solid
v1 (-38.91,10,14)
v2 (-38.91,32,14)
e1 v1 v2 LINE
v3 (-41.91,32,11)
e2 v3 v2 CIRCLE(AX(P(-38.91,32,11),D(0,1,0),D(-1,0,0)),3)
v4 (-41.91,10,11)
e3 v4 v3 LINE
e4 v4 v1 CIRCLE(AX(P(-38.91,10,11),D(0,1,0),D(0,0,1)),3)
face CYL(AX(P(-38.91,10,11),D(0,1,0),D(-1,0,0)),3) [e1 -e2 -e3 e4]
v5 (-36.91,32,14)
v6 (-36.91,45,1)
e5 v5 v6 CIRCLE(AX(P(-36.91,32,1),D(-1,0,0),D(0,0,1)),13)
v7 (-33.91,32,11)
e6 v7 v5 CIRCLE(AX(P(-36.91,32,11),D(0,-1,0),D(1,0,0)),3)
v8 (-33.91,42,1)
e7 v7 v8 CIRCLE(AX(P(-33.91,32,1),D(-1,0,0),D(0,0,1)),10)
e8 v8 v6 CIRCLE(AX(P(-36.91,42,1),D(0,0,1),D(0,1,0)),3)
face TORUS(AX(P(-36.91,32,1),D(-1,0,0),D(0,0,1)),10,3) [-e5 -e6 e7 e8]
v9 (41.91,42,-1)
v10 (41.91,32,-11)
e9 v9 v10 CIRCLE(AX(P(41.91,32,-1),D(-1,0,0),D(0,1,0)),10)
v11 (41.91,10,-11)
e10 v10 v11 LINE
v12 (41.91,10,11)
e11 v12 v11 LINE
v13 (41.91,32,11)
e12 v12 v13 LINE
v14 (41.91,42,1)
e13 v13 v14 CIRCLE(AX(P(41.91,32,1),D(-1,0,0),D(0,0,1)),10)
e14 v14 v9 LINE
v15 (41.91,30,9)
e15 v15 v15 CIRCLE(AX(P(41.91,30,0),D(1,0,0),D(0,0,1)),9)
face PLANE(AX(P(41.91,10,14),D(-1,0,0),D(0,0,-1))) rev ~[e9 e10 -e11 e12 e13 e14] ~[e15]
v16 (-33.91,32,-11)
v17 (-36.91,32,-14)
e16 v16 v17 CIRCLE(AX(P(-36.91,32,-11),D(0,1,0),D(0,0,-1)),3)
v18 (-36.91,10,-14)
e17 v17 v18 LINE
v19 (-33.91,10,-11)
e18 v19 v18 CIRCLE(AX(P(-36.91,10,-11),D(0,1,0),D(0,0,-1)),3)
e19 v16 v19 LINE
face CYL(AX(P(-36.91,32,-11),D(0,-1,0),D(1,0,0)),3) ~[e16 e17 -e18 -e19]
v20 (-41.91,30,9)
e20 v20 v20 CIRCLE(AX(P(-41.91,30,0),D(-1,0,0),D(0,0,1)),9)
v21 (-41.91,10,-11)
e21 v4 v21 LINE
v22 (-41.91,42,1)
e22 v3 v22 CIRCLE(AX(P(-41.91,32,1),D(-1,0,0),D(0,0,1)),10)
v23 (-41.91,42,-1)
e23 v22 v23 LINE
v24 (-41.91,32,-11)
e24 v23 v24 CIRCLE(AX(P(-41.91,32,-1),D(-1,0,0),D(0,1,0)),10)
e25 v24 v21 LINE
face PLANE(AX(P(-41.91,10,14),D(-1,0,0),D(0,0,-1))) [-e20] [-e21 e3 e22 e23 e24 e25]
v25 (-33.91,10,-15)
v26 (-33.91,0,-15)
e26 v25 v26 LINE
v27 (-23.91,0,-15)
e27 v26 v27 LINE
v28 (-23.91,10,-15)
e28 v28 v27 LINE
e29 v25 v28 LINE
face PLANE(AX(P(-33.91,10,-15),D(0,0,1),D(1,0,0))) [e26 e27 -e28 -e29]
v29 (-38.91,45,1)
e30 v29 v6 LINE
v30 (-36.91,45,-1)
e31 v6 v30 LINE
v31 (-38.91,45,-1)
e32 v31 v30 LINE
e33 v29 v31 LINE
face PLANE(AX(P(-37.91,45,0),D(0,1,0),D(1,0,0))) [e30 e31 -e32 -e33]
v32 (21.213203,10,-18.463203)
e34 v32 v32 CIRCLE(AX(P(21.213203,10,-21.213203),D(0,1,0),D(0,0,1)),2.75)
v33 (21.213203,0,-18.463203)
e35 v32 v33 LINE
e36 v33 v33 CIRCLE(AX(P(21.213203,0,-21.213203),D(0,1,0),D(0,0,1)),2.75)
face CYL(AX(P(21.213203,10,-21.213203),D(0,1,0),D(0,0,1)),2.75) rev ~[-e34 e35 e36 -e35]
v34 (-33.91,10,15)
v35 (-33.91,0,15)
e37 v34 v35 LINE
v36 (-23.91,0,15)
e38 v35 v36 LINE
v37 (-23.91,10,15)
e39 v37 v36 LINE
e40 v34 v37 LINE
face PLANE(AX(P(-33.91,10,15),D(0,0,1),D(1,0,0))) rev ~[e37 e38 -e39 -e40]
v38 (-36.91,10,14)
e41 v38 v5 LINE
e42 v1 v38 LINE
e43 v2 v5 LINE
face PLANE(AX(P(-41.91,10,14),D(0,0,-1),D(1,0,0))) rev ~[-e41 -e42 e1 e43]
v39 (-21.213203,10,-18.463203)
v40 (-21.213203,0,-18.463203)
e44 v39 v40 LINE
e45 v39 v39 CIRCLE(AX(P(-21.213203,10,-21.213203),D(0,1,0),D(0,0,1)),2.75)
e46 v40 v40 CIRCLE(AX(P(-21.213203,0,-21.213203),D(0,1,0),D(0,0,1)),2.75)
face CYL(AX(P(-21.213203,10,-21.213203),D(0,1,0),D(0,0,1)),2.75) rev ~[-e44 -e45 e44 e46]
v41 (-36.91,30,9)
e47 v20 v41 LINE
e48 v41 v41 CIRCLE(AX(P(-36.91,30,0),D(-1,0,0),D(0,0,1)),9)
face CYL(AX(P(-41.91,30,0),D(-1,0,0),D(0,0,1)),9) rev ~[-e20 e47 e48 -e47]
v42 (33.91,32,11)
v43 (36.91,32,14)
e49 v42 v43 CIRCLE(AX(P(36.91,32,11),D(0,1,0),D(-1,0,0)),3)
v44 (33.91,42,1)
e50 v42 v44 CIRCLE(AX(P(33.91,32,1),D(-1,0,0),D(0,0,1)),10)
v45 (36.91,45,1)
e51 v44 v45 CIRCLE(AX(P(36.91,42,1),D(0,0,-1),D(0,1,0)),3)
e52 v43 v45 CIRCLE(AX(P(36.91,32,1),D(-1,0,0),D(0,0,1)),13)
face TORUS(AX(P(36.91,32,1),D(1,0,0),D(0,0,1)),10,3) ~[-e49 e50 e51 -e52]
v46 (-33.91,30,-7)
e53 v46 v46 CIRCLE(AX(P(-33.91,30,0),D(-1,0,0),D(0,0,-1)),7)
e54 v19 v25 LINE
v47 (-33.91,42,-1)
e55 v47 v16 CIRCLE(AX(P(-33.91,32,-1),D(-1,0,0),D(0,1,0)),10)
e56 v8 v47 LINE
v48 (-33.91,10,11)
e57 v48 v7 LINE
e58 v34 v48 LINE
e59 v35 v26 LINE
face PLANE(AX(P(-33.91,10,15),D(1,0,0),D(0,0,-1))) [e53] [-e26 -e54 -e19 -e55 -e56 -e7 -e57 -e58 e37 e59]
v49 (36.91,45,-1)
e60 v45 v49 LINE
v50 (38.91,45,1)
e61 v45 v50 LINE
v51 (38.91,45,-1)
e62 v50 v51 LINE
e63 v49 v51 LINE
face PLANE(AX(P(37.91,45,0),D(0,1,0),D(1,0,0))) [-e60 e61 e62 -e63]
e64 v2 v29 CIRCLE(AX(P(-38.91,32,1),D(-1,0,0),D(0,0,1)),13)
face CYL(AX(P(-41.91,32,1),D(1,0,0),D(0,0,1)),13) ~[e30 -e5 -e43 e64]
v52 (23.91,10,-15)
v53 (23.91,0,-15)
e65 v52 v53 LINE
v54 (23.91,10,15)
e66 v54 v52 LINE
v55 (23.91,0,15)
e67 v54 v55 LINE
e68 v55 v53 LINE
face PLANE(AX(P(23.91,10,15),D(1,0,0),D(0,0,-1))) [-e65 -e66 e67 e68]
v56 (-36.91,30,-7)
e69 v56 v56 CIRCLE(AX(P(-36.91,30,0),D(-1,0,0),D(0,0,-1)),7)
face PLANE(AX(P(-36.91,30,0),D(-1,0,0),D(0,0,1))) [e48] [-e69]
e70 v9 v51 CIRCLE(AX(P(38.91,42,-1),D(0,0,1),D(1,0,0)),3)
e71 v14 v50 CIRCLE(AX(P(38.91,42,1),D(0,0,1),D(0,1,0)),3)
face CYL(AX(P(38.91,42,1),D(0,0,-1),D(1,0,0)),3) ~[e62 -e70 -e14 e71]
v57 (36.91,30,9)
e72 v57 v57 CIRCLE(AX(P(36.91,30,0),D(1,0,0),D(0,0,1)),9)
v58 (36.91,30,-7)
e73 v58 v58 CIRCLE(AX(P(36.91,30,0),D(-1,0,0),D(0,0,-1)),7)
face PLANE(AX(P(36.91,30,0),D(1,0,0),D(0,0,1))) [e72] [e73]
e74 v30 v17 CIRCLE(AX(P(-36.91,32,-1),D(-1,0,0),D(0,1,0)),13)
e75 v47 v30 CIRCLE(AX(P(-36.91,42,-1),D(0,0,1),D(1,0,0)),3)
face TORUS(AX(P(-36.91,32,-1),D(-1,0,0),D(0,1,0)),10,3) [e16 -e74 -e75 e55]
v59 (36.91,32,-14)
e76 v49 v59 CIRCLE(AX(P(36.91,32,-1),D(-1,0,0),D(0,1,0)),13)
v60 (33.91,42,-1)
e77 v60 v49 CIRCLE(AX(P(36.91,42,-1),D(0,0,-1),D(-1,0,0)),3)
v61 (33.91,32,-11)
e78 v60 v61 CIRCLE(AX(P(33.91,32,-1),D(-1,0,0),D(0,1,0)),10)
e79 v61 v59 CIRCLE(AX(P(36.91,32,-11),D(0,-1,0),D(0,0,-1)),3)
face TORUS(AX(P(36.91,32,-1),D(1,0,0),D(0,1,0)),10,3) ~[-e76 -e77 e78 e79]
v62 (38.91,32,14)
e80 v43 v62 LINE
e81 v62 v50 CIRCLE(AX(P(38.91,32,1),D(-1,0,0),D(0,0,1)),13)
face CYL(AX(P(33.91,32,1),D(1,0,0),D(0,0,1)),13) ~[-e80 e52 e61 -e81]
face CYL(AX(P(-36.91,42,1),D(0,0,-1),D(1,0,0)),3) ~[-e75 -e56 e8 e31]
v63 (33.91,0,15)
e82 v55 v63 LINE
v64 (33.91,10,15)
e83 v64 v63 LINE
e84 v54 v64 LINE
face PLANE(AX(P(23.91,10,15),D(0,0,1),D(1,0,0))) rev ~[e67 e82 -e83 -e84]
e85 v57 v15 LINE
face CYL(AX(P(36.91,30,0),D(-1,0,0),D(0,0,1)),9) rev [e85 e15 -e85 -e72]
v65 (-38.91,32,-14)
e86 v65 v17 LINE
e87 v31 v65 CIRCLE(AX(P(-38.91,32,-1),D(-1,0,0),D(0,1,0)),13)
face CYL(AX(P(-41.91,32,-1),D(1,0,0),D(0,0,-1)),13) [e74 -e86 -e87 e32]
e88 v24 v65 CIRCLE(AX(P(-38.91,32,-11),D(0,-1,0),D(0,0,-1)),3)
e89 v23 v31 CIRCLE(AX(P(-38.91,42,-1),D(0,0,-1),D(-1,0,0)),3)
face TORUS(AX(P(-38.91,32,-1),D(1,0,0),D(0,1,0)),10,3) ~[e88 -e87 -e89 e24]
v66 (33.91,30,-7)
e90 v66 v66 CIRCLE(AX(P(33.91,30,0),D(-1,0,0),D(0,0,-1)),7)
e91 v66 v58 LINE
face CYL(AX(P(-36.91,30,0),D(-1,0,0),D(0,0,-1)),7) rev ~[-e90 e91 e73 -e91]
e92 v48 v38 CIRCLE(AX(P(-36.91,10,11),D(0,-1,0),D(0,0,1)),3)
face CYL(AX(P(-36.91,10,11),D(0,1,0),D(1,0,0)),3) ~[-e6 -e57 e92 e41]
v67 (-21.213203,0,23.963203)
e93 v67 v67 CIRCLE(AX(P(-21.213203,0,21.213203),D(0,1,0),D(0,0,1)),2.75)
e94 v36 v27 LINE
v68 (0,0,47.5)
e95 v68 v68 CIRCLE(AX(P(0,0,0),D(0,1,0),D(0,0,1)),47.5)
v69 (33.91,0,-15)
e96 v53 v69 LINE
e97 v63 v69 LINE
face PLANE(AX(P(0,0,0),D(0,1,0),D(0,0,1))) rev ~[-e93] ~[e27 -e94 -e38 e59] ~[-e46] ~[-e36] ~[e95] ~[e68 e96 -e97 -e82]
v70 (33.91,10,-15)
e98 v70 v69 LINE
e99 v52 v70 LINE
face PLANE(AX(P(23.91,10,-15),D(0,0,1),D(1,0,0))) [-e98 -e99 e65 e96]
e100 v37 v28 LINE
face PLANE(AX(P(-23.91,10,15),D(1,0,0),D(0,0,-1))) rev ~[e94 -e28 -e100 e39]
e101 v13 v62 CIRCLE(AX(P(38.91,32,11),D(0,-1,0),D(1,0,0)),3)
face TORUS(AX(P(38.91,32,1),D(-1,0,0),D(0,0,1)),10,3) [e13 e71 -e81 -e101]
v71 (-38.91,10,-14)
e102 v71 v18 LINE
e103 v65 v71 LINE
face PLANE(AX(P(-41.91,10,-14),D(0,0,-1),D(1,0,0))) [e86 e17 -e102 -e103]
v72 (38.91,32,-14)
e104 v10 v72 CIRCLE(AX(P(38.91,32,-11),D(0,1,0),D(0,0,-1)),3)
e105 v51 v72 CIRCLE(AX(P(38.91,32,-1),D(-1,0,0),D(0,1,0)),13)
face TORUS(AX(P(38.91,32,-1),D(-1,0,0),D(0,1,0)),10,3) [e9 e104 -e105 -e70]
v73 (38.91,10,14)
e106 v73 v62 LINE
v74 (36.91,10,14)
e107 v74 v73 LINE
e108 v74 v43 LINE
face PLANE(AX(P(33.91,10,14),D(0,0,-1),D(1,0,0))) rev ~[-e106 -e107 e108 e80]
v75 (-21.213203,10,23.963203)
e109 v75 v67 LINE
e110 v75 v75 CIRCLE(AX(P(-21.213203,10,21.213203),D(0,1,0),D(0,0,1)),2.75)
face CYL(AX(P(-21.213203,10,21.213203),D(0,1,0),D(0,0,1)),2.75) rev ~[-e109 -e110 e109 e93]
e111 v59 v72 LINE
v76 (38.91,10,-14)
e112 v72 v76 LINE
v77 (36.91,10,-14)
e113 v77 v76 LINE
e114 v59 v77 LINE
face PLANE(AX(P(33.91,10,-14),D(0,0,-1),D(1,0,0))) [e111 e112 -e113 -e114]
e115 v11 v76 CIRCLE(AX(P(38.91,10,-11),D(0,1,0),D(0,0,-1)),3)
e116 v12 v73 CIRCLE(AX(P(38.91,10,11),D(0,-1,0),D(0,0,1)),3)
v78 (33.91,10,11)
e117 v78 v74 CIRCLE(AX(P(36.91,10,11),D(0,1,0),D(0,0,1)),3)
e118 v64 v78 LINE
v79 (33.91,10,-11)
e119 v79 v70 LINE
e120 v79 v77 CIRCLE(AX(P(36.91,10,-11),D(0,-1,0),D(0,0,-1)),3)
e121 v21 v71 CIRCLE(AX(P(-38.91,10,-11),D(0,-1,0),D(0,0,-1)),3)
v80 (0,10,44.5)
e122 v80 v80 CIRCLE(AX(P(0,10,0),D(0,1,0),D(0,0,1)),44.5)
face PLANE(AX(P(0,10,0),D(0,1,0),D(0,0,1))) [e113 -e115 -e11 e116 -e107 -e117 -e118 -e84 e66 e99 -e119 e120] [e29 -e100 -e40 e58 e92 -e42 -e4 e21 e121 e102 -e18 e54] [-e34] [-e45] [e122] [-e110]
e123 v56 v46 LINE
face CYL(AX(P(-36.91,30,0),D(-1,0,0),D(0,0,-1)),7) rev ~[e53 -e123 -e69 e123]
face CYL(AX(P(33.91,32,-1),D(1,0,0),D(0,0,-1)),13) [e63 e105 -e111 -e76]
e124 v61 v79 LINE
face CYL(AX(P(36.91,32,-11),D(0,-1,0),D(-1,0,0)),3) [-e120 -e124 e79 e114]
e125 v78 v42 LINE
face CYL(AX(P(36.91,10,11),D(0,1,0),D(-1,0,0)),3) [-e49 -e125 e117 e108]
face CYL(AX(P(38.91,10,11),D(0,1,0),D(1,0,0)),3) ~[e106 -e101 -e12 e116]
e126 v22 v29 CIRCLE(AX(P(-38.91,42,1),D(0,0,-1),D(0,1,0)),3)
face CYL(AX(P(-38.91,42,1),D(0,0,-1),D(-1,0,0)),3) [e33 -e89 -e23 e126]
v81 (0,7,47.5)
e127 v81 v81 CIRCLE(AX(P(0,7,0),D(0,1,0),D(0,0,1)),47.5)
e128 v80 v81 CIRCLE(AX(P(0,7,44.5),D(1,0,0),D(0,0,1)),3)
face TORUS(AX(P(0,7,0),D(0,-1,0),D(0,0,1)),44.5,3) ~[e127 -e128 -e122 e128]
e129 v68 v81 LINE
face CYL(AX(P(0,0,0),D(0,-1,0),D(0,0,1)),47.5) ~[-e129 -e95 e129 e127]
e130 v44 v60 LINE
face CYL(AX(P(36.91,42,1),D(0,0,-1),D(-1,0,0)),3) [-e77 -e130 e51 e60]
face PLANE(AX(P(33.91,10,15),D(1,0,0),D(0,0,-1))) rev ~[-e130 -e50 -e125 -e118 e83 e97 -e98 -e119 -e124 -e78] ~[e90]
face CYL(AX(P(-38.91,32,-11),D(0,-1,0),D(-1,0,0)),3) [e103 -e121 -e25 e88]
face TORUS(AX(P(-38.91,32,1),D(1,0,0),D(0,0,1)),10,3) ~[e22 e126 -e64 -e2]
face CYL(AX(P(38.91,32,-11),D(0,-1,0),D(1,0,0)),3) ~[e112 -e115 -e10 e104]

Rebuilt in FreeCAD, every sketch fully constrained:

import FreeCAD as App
import Part
import Sketcher

V = App.Vector
Q = App.Units.Quantity


def edges_at(feature, points):
    """Names of the edges that pass closest to the given points."""
    edges = feature.Shape.Edges
    near = lambda p: min(range(len(edges)), key=lambda i: edges[i].distToShape(Part.Vertex(*p))[0])
    return sorted({f"Edge{near(p) + 1}" for p in points})

doc = App.newDocument("Part")
params = doc.addObject("Spreadsheet::Sheet", "Params")
for row, (alias, value) in enumerate([
    ("sketch1_diameter", "95 mm"),
    ("pad1_length", "10 mm"),
    ("sketch2_width", "8 mm"),
    ("sketch2_height", "28 mm"),
    ("pad2_length", "35 mm"),
    ("sketch3_diameter", "5.5 mm"),
    ("pocket1_length", "70 mm"),
    ("sketch4_diameter", "18 mm"),
    ("pocket2_length", "5 mm"),
    ("sketch5_diameter", "18 mm"),
    ("pocket3_length", "5 mm"),
    ("sketch6_diameter", "14 mm"),
    ("fillet_radius", "13 mm"),
    ("fillet2_radius", "3 mm"),
    ("fillet3_radius", "3 mm"),
    ("sketch7_width", "10 mm"),
    ("sketch7_height", "30 mm"),
], start=1):
    params.set(f"A{row}", alias)
    params.set(f"B{row}", "=" + value)
    params.setAlias(f"B{row}", alias)

body = doc.addObject("PartDesign::Body", "Body")

# Sketch on XZ plane
sketch1 = body.newObject("Sketcher::SketchObject", "Sketch")
sketch1.AttachmentSupport = (doc.getObject("XZ_Plane"), [""])
sketch1.MapMode = "FlatFace"
sketch1.addGeometry(Part.Circle(V(0, 0, 0), V(0, 0, 1), 48), False)
sketch1.addConstraint([
    Sketcher.Constraint("Coincident", 0, 3, -1, 1),
    Sketcher.Constraint("Diameter", 0, Q("95 mm")),
])
sketch1.setExpression("Constraints[1]", "Params.sketch1_diameter")
pad1 = body.newObject("PartDesign::Pad", "Pad")
pad1.Profile = sketch1
pad1.setExpression("Length", "Params.pad1_length")
pad1.Reversed = True

# Sketch on XZ plane
sketch2 = body.newObject("Sketcher::SketchObject", "Sketch001")
sketch2.AttachmentSupport = (doc.getObject("XZ_Plane"), [""])
sketch2.MapMode = "FlatFace"
sketch2.AttachmentOffset = App.Placement(V(0, 0, -10), App.Rotation())
sketch2.addGeometry([
    Part.LineSegment(V(-42, -14, 0), V(-42, 14, 0)),  # 0
    Part.LineSegment(V(-42, 14, 0), V(-34, 14, 0)),  # 1
    Part.LineSegment(V(-34, 14, 0), V(-34, -14, 0)),  # 2
    Part.LineSegment(V(-34, -14, 0), V(-42, -14, 0)),  # 3
    Part.LineSegment(V(34, -14, 0), V(34, 14, 0)),  # 4
    Part.LineSegment(V(34, 14, 0), V(42, 14, 0)),  # 5
    Part.LineSegment(V(42, 14, 0), V(42, -14, 0)),  # 6
    Part.LineSegment(V(42, -14, 0), V(34, -14, 0)),  # 7
], False)
sketch2.addConstraint([
    Sketcher.Constraint("Coincident", 0, 2, 1, 1),
    Sketcher.Constraint("Coincident", 1, 2, 2, 1),
    Sketcher.Constraint("Coincident", 2, 2, 3, 1),
    Sketcher.Constraint("Coincident", 3, 2, 0, 1),
    Sketcher.Constraint("Coincident", 4, 2, 5, 1),
    Sketcher.Constraint("Coincident", 5, 2, 6, 1),
    Sketcher.Constraint("Coincident", 6, 2, 7, 1),
    Sketcher.Constraint("Coincident", 7, 2, 4, 1),
    Sketcher.Constraint("Vertical", 0),
    Sketcher.Constraint("Horizontal", 1),
    Sketcher.Constraint("Vertical", 2),
    Sketcher.Constraint("Horizontal", 3),
    Sketcher.Constraint("Vertical", 4),
    Sketcher.Constraint("Horizontal", 5),
    Sketcher.Constraint("Vertical", 6),
    Sketcher.Constraint("Horizontal", 7),
    Sketcher.Constraint("Symmetric", 2, 2, 4, 2, -1, 1),
    Sketcher.Constraint("Symmetric", 0, 2, 6, 2, -1, 1),
    Sketcher.Constraint("Horizontal", 1, 2, 4, 2),
    Sketcher.Constraint("DistanceX", 1, 1, 1, 2, Q("8 mm")),
    Sketcher.Constraint("DistanceY", 0, 1, 0, 2, Q("28 mm")),
    Sketcher.Constraint("DistanceX", 0, 2, -1, 1, Q("41.91 mm")),
])
sketch2.setExpression("Constraints[19]", "Params.sketch2_width")
sketch2.setExpression("Constraints[20]", "Params.sketch2_height")
pad2 = body.newObject("PartDesign::Pad", "Pad001")
pad2.Profile = sketch2
pad2.setExpression("Length", "Params.pad2_length")
pad2.Reversed = True

# Sketch on XZ plane
sketch3 = body.newObject("Sketcher::SketchObject", "Sketch002")
sketch3.AttachmentSupport = (doc.getObject("XZ_Plane"), [""])
sketch3.MapMode = "FlatFace"
sketch3.AttachmentOffset = App.Placement(V(0, 0, -10), App.Rotation())
sketch3.addGeometry([
    Part.Circle(V(-21.2, -21.2, 0), V(0, 0, 1), 2.8),
    Part.Circle(V(21.2, -21.2, 0), V(0, 0, 1), 2.8),
    Part.Circle(V(-21.2, 21.2, 0), V(0, 0, 1), 2.8),
], False)
sketch3.addConstraint([
    Sketcher.Constraint("Equal", 0, 1),
    Sketcher.Constraint("Equal", 1, 2),
    Sketcher.Constraint("Symmetric", 1, 3, 2, 3, -1, 1),
    Sketcher.Constraint("Symmetric", 0, 3, 1, 3, -2),
    Sketcher.Constraint("Diameter", 0, Q("5.5 mm")),
    Sketcher.Constraint("DistanceX", 0, 3, -1, 1, Q("21.213203 mm")),
    Sketcher.Constraint("DistanceY", 0, 3, -1, 1, Q("21.213203 mm")),
])
sketch3.setExpression("Constraints[4]", "Params.sketch3_diameter")
pocket1 = body.newObject("PartDesign::Pocket", "Pocket")
pocket1.Profile = sketch3
pocket1.setExpression("Length", "Params.pocket1_length")
pocket1.Reversed = True

# Sketch on YZ plane
sketch4 = body.newObject("Sketcher::SketchObject", "Sketch003")
sketch4.AttachmentSupport = (doc.getObject("YZ_Plane"), [""])
sketch4.MapMode = "FlatFace"
sketch4.AttachmentOffset = App.Placement(V(0, 0, -41.91), App.Rotation())
sketch4.addGeometry(Part.Circle(V(30, 0, 0), V(0, 0, 1), 9), False)
sketch4.addConstraint([
    Sketcher.Constraint("PointOnObject", 0, 3, -1),
    Sketcher.Constraint("Diameter", 0, Q("18 mm")),
    Sketcher.Constraint("DistanceX", -1, 1, 0, 3, Q("30 mm")),
])
sketch4.setExpression("Constraints[1]", "Params.sketch4_diameter")
pocket2 = body.newObject("PartDesign::Pocket", "Pocket001")
pocket2.Profile = sketch4
pocket2.setExpression("Length", "Params.pocket2_length")
pocket2.Reversed = True

# Sketch on YZ plane
sketch5 = body.newObject("Sketcher::SketchObject", "Sketch004")
sketch5.AttachmentSupport = (doc.getObject("YZ_Plane"), [""])
sketch5.MapMode = "FlatFace"
sketch5.AttachmentOffset = App.Placement(V(0, 0, 36.91), App.Rotation())
sketch5.addGeometry(Part.Circle(V(30, 0, 0), V(0, 0, 1), 9), False)
sketch5.addConstraint([
    Sketcher.Constraint("PointOnObject", 0, 3, -1),
    Sketcher.Constraint("Diameter", 0, Q("18 mm")),
    Sketcher.Constraint("DistanceX", -1, 1, 0, 3, Q("30 mm")),
])
sketch5.setExpression("Constraints[1]", "Params.sketch5_diameter")
pocket3 = body.newObject("PartDesign::Pocket", "Pocket002")
pocket3.Profile = sketch5
pocket3.setExpression("Length", "Params.pocket3_length")
pocket3.Reversed = True

# Sketch on YZ plane
sketch6 = body.newObject("Sketcher::SketchObject", "Sketch005")
sketch6.AttachmentSupport = (doc.getObject("YZ_Plane"), [""])
sketch6.MapMode = "FlatFace"
sketch6.AttachmentOffset = App.Placement(V(0, 0, -36.91), App.Rotation())
sketch6.addGeometry(Part.Circle(V(30, 0, 0), V(0, 0, 1), 7), False)
sketch6.addConstraint([
    Sketcher.Constraint("PointOnObject", 0, 3, -1),
    Sketcher.Constraint("Diameter", 0, Q("14 mm")),
    Sketcher.Constraint("DistanceX", -1, 1, 0, 3, Q("30 mm")),
])
sketch6.setExpression("Constraints[1]", "Params.sketch6_diameter")
pocket4 = body.newObject("PartDesign::Pocket", "Pocket003")
pocket4.Profile = sketch6
pocket4.Type = "ThroughAll"
pocket4.Reversed = True
doc.recompute()

fillet = body.newObject("PartDesign::Fillet", "Fillet")
fillet.Base = (pocket4, edges_at(pocket4, [
    (-37.91, 45, -14),
    (37.91, 45, -14),
    (37.91, 45, 14),
    (-37.91, 45, 14),
]))
fillet.setExpression("Radius", "Params.fillet_radius")
doc.recompute()

fillet2 = body.newObject("PartDesign::Fillet", "Fillet001")
fillet2.Base = (fillet, edges_at(fillet, [
    (33.91, 45, 0),
    (41.91, 45, 0),
    (41.91, 21, -14),
    (41.91, 21, 14),
    (41.91, 41.192, -10.192),
    (41.91, 41.192, 10.192),
    (33.91, 21, 14),
    (33.91, 21, -14),
    (33.91, 41.192, -10.192),
    (33.91, 41.192, 10.192),
    (-41.91, 45, 0),
    (-33.91, 45, 0),
    (-41.91, 21, 14),
    (-41.91, 21, -14),
    (-41.91, 41.192, 10.192),
    (-41.91, 41.192, -10.192),
    (-33.91, 21, -14),
    (-33.91, 21, 14),
    (-33.91, 41.192, 10.192),
    (-33.91, 41.192, -10.192),
]))
fillet2.setExpression("Radius", "Params.fillet2_radius")
doc.recompute()

fillet3 = body.newObject("PartDesign::Fillet", "Fillet002")
fillet3.Base = (fillet2, edges_at(fillet2, [(0, 10, -47.5)]))
fillet3.setExpression("Radius", "Params.fillet3_radius")

# Sketch on XZ plane
sketch7 = body.newObject("Sketcher::SketchObject", "Sketch006")
sketch7.AttachmentSupport = (doc.getObject("XZ_Plane"), [""])
sketch7.MapMode = "FlatFace"
sketch7.AttachmentOffset = App.Placement(V(0, 0, -10), App.Rotation())
sketch7.addGeometry([
    Part.LineSegment(V(-34, -15, 0), V(-34, 15, 0)),  # 0
    Part.LineSegment(V(-34, 15, 0), V(-24, 15, 0)),  # 1
    Part.LineSegment(V(-24, 15, 0), V(-24, -15, 0)),  # 2
    Part.LineSegment(V(-24, -15, 0), V(-34, -15, 0)),  # 3
    Part.LineSegment(V(24, -15, 0), V(24, 15, 0)),  # 4
    Part.LineSegment(V(24, 15, 0), V(34, 15, 0)),  # 5
    Part.LineSegment(V(34, 15, 0), V(34, -15, 0)),  # 6
    Part.LineSegment(V(34, -15, 0), V(24, -15, 0)),  # 7
], False)
sketch7.addConstraint([
    Sketcher.Constraint("Coincident", 0, 2, 1, 1),
    Sketcher.Constraint("Coincident", 1, 2, 2, 1),
    Sketcher.Constraint("Coincident", 2, 2, 3, 1),
    Sketcher.Constraint("Coincident", 3, 2, 0, 1),
    Sketcher.Constraint("Coincident", 4, 2, 5, 1),
    Sketcher.Constraint("Coincident", 5, 2, 6, 1),
    Sketcher.Constraint("Coincident", 6, 2, 7, 1),
    Sketcher.Constraint("Coincident", 7, 2, 4, 1),
    Sketcher.Constraint("Vertical", 0),
    Sketcher.Constraint("Horizontal", 1),
    Sketcher.Constraint("Vertical", 2),
    Sketcher.Constraint("Horizontal", 3),
    Sketcher.Constraint("Vertical", 4),
    Sketcher.Constraint("Horizontal", 5),
    Sketcher.Constraint("Vertical", 6),
    Sketcher.Constraint("Horizontal", 7),
    Sketcher.Constraint("Symmetric", 2, 2, 4, 2, -1, 1),
    Sketcher.Constraint("Symmetric", 0, 2, 6, 2, -1, 1),
    Sketcher.Constraint("Horizontal", 1, 2, 4, 2),
    Sketcher.Constraint("DistanceX", 1, 1, 1, 2, Q("10 mm")),
    Sketcher.Constraint("DistanceY", 0, 1, 0, 2, Q("30 mm")),
    Sketcher.Constraint("DistanceX", 0, 2, -1, 1, Q("33.91 mm")),
])
sketch7.setExpression("Constraints[19]", "Params.sketch7_width")
sketch7.setExpression("Constraints[20]", "Params.sketch7_height")
pocket5 = body.newObject("PartDesign::Pocket", "Pocket004")
pocket5.Profile = sketch7
pocket5.Type = "ThroughAll"
pocket5.Reversed = True

doc.recompute()
